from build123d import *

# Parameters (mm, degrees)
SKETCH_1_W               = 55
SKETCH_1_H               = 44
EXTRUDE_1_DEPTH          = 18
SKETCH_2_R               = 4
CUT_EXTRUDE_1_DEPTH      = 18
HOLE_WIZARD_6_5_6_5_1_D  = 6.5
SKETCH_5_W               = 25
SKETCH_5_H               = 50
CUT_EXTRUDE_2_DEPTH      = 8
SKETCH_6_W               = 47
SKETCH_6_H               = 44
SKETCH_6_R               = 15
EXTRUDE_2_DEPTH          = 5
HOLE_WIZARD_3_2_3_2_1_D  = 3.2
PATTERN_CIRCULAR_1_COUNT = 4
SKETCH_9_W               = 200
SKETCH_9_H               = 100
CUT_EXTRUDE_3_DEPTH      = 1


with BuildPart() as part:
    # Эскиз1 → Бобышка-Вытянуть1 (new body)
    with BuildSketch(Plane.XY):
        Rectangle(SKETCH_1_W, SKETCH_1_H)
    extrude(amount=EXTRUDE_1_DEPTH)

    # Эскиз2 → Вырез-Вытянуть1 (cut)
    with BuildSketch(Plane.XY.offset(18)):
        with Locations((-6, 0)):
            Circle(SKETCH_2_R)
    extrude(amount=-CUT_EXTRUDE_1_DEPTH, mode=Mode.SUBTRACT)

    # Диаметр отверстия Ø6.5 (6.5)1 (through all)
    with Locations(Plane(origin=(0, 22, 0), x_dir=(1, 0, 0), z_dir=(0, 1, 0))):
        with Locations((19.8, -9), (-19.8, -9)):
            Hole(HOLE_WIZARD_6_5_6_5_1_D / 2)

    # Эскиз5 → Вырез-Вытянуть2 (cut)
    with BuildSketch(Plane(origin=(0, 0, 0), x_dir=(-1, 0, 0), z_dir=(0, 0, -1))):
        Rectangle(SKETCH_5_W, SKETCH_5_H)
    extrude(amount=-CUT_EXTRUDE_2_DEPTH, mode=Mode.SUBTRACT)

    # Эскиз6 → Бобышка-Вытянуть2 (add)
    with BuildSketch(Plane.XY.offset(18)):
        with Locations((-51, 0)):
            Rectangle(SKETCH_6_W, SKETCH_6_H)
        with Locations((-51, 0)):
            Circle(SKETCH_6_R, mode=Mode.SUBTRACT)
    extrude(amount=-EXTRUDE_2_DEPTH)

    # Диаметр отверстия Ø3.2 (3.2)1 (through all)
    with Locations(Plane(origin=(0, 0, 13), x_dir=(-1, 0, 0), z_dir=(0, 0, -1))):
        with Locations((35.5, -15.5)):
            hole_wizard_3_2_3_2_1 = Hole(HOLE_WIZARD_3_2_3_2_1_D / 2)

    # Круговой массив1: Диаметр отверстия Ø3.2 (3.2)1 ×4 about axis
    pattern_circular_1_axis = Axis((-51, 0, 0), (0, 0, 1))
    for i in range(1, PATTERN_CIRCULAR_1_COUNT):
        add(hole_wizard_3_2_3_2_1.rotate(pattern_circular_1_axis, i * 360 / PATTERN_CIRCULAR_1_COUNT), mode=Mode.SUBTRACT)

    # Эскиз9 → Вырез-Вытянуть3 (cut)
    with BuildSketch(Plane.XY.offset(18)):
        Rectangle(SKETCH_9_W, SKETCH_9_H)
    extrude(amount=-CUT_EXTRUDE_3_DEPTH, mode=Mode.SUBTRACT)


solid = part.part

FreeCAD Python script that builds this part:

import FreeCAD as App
import Part
import Sketcher
from FreeCAD import Vector


def add_polygon(sketch, points):
    """Adds a closed chain of lines whose ends are joined by coincident constraints."""
    first, n = sketch.GeometryCount, len(points)
    for a, b in zip(points, points[1:] + points[:1]):
        sketch.addGeometry(Part.LineSegment(App.Vector(*a, 0), App.Vector(*b, 0)), False)
    for i in range(n):
        sketch.addConstraint(Sketcher.Constraint("Coincident", first + i, 2, first + (i + 1) % n, 1))

doc = App.newDocument("Part")
params = doc.addObject("Spreadsheet::Sheet", "Params")
for row, (alias, value) in enumerate([
    ("sketch1_width", "55 mm"),
    ("sketch1_height", "44 mm"),
    ("pad1_length", "18 mm"),
    ("sketch2_diameter", "8 mm"),
    ("pocket1_length", "18 mm"),
    ("sketch3_diameter", "6.5 mm"),
    ("hole_diameter", "6.5 mm"),
    ("sketch4_width", "25 mm"),
    ("sketch4_height", "50 mm"),
    ("pocket2_length", "8 mm"),
    ("sketch5_diameter", "30 mm"),
    ("sketch5_width", "47 mm"),
    ("sketch5_height", "44 mm"),
    ("pad2_length", "5 mm"),
    ("sketch6_diameter", "3.2 mm"),
    ("hole2_diameter", "3.2 mm"),
    ("sketch7_width", "200 mm"),
    ("sketch7_height", "100 mm"),
    ("pocket3_length", "1 mm"),
], start=1):
    params.set(f"A{row}", alias)
    params.set(f"B{row}", "=" + value)
    params.setAlias(f"B{row}", alias)

body = doc.addObject("PartDesign::Body", "Body")

sketch1 = doc.addObject("Sketcher::SketchObject", "Sketch")
body.addObject(sketch1)
sketch1.AttachmentSupport = (doc.XY_Plane, [""])
sketch1.MapMode = "FlatFace"
add_polygon(sketch1, [(-27.5, 22), (-27.5, -22), (27.5, -22), (27.5, 22)])
sketch1.addConstraint([
    Sketcher.Constraint("Vertical", 0),
    Sketcher.Constraint("Horizontal", 1),
    Sketcher.Constraint("Vertical", 2),
    Sketcher.Constraint("Horizontal", 3),
    Sketcher.Constraint("Symmetric", 0, 2, 2, 2, -1, 1),
    Sketcher.Constraint("DistanceX", 1, 1, 1, 2, 55.0),
    Sketcher.Constraint("DistanceY", 0, 2, 0, 1, 44.0),
])
sketch1.setExpression("Constraints[9]", "Params.sketch1_width")
sketch1.setExpression("Constraints[10]", "Params.sketch1_height")
pad1 = doc.addObject("PartDesign::Pad", "Pad")
body.addObject(pad1)
pad1.Profile = sketch1
pad1.setExpression("Length", "Params.pad1_length")

sketch2 = doc.addObject("Sketcher::SketchObject", "Sketch001")
body.addObject(sketch2)
sketch2.AttachmentSupport = (doc.XY_Plane, [""])
sketch2.MapMode = "FlatFace"
sketch2.AttachmentOffset = App.Placement(Vector(0, 0, 18), App.Rotation())
sketch2.addGeometry(Part.Circle(Vector(-6, 0, 0), Vector(0, 0, 1), 4), False)
sketch2.addConstraint([
    Sketcher.Constraint("PointOnObject", 0, 3, -1),
    Sketcher.Constraint("Diameter", 0, 8.0),
    Sketcher.Constraint("DistanceX", 0, 3, -1, 1, 6.0),
])
sketch2.setExpression("Constraints[1]", "Params.sketch2_diameter")
pocket1 = doc.addObject("PartDesign::Pocket", "Pocket")
body.addObject(pocket1)
pocket1.Profile = sketch2
pocket1.setExpression("Length", "Params.pocket1_length")

sketch3 = doc.addObject("Sketcher::SketchObject", "Sketch002")
body.addObject(sketch3)
sketch3.AttachmentSupport = (doc.XZ_Plane, [""])
sketch3.MapMode = "FlatFace"
sketch3.AttachmentOffset = App.Placement(Vector(0, 0, -22), App.Rotation())
sketch3.addGeometry([
    Part.Circle(Vector(19.8, 9, 0), Vector(0, 0, 1), 3.25),
    Part.Circle(Vector(-19.8, 9, 0), Vector(0, 0, 1), 3.25),
], False)
sketch3.addConstraint([
    Sketcher.Constraint("Equal", 0, 1),
    Sketcher.Constraint("Symmetric", 0, 3, 1, 3, -2),
    Sketcher.Constraint("Diameter", 0, 6.5),
    Sketcher.Constraint("DistanceY", -1, 1, 0, 3, 9.0),
    Sketcher.Constraint("DistanceX", -1, 1, 0, 3, 19.8),
])
sketch3.setExpression("Constraints[2]", "Params.sketch3_diameter")
doc.recompute()
hole = doc.addObject("PartDesign::Hole", "Hole")
body.addObject(hole)
hole.Profile = sketch3
hole.ThreadType = "None"
hole.setExpression("Diameter", "Params.hole_diameter")
hole.DepthType = "ThroughAll"
hole.Reversed = True

sketch4 = doc.addObject("Sketcher::SketchObject", "Sketch003")
body.addObject(sketch4)
sketch4.AttachmentSupport = (doc.XY_Plane, [""])
sketch4.MapMode = "FlatFace"
add_polygon(sketch4, [(12.5, 25), (12.5, -25), (-12.5, -25), (-12.5, 25)])
sketch4.addConstraint([
    Sketcher.Constraint("Vertical", 0),
    Sketcher.Constraint("Horizontal", 1),
    Sketcher.Constraint("Vertical", 2),
    Sketcher.Constraint("Horizontal", 3),
    Sketcher.Constraint("Symmetric", 0, 2, 2, 2, -1, 1),
    Sketcher.Constraint("DistanceX", 1, 2, 1, 1, 25.0),
    Sketcher.Constraint("DistanceY", 0, 2, 0, 1, 50.0),
])
sketch4.setExpression("Constraints[9]", "Params.sketch4_width")
sketch4.setExpression("Constraints[10]", "Params.sketch4_height")
pocket2 = doc.addObject("PartDesign::Pocket", "Pocket001")
body.addObject(pocket2)
pocket2.Profile = sketch4
pocket2.setExpression("Length", "Params.pocket2_length")
pocket2.Reversed = True

sketch5 = doc.addObject("Sketcher::SketchObject", "Sketch004")
body.addObject(sketch5)
sketch5.AttachmentSupport = (doc.XY_Plane, [""])
sketch5.MapMode = "FlatFace"
sketch5.AttachmentOffset = App.Placement(Vector(0, 0, 18), App.Rotation())
add_polygon(sketch5, [(-74.5, 22), (-74.5, -22), (-27.5, -22), (-27.5, 22)])
sketch5.addGeometry(Part.Circle(Vector(-51, 0, 0), Vector(0, 0, 1), 15), False)
sketch5.addConstraint([
    Sketcher.Constraint("Vertical", 0),
    Sketcher.Constraint("Horizontal", 1),
    Sketcher.Constraint("Vertical", 2),
    Sketcher.Constraint("Horizontal", 3),
    Sketcher.Constraint("PointOnObject", 4, 3, -1),
    Sketcher.Constraint("Diameter", 4, 30.0),
    Sketcher.Constraint("DistanceX", 1, 1, 1, 2, 47.0),
    Sketcher.Constraint("DistanceY", 0, 2, 0, 1, 44.0),
    Sketcher.Constraint("DistanceX", 4, 3, -1, 1, 51.0),
    Sketcher.Constraint("DistanceY", 0, 2, -1, 1, 22.0),
    Sketcher.Constraint("DistanceX", 0, 2, -1, 1, 74.5),
])
sketch5.setExpression("Constraints[9]", "Params.sketch5_diameter")
sketch5.setExpression("Constraints[10]", "Params.sketch5_width")
sketch5.setExpression("Constraints[11]", "Params.sketch5_height")
pad2 = doc.addObject("PartDesign::Pad", "Pad001")
body.addObject(pad2)
pad2.Profile = sketch5
pad2.setExpression("Length", "Params.pad2_length")
pad2.Reversed = True

sketch6 = doc.addObject("Sketcher::SketchObject", "Sketch005")
body.addObject(sketch6)
sketch6.AttachmentSupport = (doc.XY_Plane, [""])
sketch6.MapMode = "FlatFace"
sketch6.AttachmentOffset = App.Placement(Vector(0, 0, 13), App.Rotation())
sketch6.addGeometry(Part.Circle(Vector(-35.5, -15.5, 0), Vector(0, 0, 1), 1.6), False)
sketch6.addConstraint([
    Sketcher.Constraint("Diameter", 0, 3.2),
    Sketcher.Constraint("DistanceX", 0, 3, -1, 1, 35.5),
    Sketcher.Constraint("DistanceY", 0, 3, -1, 1, 15.5),
])
sketch6.setExpression("Constraints[0]", "Params.sketch6_diameter")
doc.recompute()
hole2 = doc.addObject("PartDesign::Hole", "Hole001")
body.addObject(hole2)
hole2.Profile = sketch6
hole2.ThreadType = "None"
hole2.setExpression("Diameter", "Params.hole2_diameter")
hole2.DepthType = "ThroughAll"
hole2.Reversed = True
doc.recompute()

datumline = doc.addObject("PartDesign::Line", "DatumLine")
body.addObject(datumline)
datumline.Placement = App.Placement(Vector(-51, 0, 0), App.Rotation(Vector(0, 0, 1), Vector(0, 0, 1)))
polarpattern = doc.addObject("PartDesign::PolarPattern", "PolarPattern")
body.addObject(polarpattern)
polarpattern.Originals = [hole2]
polarpattern.Axis = (datumline, [""])
polarpattern.Angle = 360
polarpattern.Occurrences = 4
body.Tip = polarpattern

sketch7 = doc.addObject("Sketcher::SketchObject", "Sketch006")
body.addObject(sketch7)
sketch7.AttachmentSupport = (doc.XY_Plane, [""])
sketch7.MapMode = "FlatFace"
sketch7.AttachmentOffset = App.Placement(Vector(0, 0, 18), App.Rotation())
add_polygon(sketch7, [(-100, 50), (-100, -50), (100, -50), (100, 50)])
sketch7.addConstraint([
    Sketcher.Constraint("Vertical", 0),
    Sketcher.Constraint("Horizontal", 1),
    Sketcher.Constraint("Vertical", 2),
    Sketcher.Constraint("Horizontal", 3),
    Sketcher.Constraint("Symmetric", 0, 2, 2, 2, -1, 1),
    Sketcher.Constraint("DistanceX", 1, 1, 1, 2, 200.0),
    Sketcher.Constraint("DistanceY", 0, 2, 0, 1, 100.0),
])
sketch7.setExpression("Constraints[9]", "Params.sketch7_width")
sketch7.setExpression("Constraints[10]", "Params.sketch7_height")
pocket3 = doc.addObject("PartDesign::Pocket", "Pocket002")
body.addObject(pocket3)
pocket3.Profile = sketch7
pocket3.setExpression("Length", "Params.pocket3_length")

doc.recompute()
